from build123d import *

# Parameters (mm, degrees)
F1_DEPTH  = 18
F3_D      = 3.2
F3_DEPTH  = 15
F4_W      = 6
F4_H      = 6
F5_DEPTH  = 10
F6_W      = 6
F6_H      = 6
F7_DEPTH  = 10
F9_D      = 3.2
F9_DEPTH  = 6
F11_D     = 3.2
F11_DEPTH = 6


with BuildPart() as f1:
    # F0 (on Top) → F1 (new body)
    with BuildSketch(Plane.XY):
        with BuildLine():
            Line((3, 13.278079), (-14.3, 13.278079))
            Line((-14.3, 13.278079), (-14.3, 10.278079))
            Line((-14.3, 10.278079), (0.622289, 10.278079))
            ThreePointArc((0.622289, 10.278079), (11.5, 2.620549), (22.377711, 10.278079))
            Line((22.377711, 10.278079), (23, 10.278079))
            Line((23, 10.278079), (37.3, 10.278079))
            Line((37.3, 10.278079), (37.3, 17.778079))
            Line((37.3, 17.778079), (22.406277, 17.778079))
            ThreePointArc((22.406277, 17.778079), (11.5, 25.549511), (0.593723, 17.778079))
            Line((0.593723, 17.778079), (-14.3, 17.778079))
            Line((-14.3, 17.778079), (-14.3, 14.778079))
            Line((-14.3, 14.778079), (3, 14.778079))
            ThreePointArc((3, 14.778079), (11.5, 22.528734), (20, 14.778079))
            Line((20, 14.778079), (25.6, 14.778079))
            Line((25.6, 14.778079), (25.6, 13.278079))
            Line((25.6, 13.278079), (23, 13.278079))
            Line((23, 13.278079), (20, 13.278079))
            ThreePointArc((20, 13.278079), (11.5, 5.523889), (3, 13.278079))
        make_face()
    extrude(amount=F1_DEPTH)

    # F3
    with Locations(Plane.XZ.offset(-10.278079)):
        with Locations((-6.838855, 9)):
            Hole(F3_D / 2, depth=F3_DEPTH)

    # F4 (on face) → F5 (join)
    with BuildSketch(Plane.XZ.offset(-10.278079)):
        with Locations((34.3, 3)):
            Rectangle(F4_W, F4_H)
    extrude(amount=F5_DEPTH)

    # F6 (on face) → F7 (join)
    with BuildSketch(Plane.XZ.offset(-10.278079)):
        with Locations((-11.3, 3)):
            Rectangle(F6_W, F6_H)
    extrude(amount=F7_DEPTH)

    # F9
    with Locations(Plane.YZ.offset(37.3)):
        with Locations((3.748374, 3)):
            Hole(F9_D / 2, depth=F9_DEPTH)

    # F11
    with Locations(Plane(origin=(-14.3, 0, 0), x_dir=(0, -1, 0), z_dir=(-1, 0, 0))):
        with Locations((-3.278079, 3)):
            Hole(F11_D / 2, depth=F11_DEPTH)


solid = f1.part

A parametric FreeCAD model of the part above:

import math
import FreeCAD as App
import Part
import Sketcher
from FreeCAD import Vector


def add_polygon(sketch, points):
    """Adds a closed chain of lines whose ends are joined by coincident constraints."""
    first, n = sketch.GeometryCount, len(points)
    for a, b in zip(points, points[1:] + points[:1]):
        sketch.addGeometry(Part.LineSegment(App.Vector(*a, 0), App.Vector(*b, 0)), False)
    for i in range(n):
        sketch.addConstraint(Sketcher.Constraint("Coincident", first + i, 2, first + (i + 1) % n, 1))

doc = App.newDocument("Part")
body = doc.addObject("PartDesign::Body", "Body")

# Sketch on XY plane
sketch1 = body.newObject("Sketcher::SketchObject", "Sketch")
sketch1.AttachmentSupport = (doc.getObject("XY_Plane"), [""])
sketch1.MapMode = "FlatFace"
sketch1.addGeometry([
    Part.LineSegment(Vector(3, 13.3, 0), Vector(-14.3, 13.3, 0)),  # 0
    Part.LineSegment(Vector(-14.3, 13.3, 0), Vector(-14.3, 10.3, 0)),  # 1
    Part.LineSegment(Vector(-14.3, 10.3, 0), Vector(0.6, 10.3, 0)),  # 2
    Part.ArcOfCircle(Part.Circle(Vector(11.5, 14.2, 0), Vector(0, 0, 1), 11.6), math.radians(-160), math.radians(-20)),  # 3
    Part.LineSegment(Vector(22.4, 10.3, 0), Vector(37.3, 10.3, 0)),  # 4
    Part.LineSegment(Vector(37.3, 10.3, 0), Vector(37.3, 17.8, 0)),  # 5
    Part.LineSegment(Vector(37.3, 17.8, 0), Vector(22.4, 17.8, 0)),  # 6
    Part.ArcOfCircle(Part.Circle(Vector(11.5, 14, 0), Vector(0, 0, 1), 11.5), math.radians(19), math.radians(161)),  # 7
    Part.LineSegment(Vector(0.6, 17.8, 0), Vector(-14.3, 17.8, 0)),  # 8
    Part.LineSegment(Vector(-14.3, 17.8, 0), Vector(-14.3, 14.8, 0)),  # 9
    Part.LineSegment(Vector(-14.3, 14.8, 0), Vector(3, 14.8, 0)),  # 10
    Part.ArcOfCircle(Part.Circle(Vector(11.5, 14, 0), Vector(0, 0, 1), 8.5), math.radians(5), math.radians(175)),  # 11
    Part.LineSegment(Vector(20, 14.8, 0), Vector(25.6, 14.8, 0)),  # 12
    Part.LineSegment(Vector(25.6, 14.8, 0), Vector(25.6, 13.3, 0)),  # 13
    Part.LineSegment(Vector(25.6, 13.3, 0), Vector(20, 13.3, 0)),  # 14
    Part.ArcOfCircle(Part.Circle(Vector(11.5, 14.1, 0), Vector(0, 0, 1), 8.5), math.radians(-175), math.radians(-5)),  # 15
], False)
sketch1.addConstraint([
    Sketcher.Constraint("Coincident", 0, 2, 1, 1),
    Sketcher.Constraint("Coincident", 1, 2, 2, 1),
    Sketcher.Constraint("Coincident", 2, 2, 3, 1),
    Sketcher.Constraint("Coincident", 3, 2, 4, 1),
    Sketcher.Constraint("Coincident", 4, 2, 5, 1),
    Sketcher.Constraint("Coincident", 5, 2, 6, 1),
    Sketcher.Constraint("Coincident", 6, 2, 7, 1),
    Sketcher.Constraint("Coincident", 7, 2, 8, 1),
    Sketcher.Constraint("Coincident", 8, 2, 9, 1),
    Sketcher.Constraint("Coincident", 9, 2, 10, 1),
    Sketcher.Constraint("Coincident", 10, 2, 11, 2),
    Sketcher.Constraint("Coincident", 11, 1, 12, 1),
    Sketcher.Constraint("Coincident", 12, 2, 13, 1),
    Sketcher.Constraint("Coincident", 13, 2, 14, 1),
    Sketcher.Constraint("Coincident", 14, 2, 15, 2),
    Sketcher.Constraint("Coincident", 15, 1, 0, 1),
    Sketcher.Constraint("Horizontal", 0),
    Sketcher.Constraint("Vertical", 1),
    Sketcher.Constraint("Horizontal", 2),
    Sketcher.Constraint("Horizontal", 4),
    Sketcher.Constraint("Vertical", 5),
    Sketcher.Constraint("Horizontal", 6),
    Sketcher.Constraint("Horizontal", 8),
    Sketcher.Constraint("Vertical", 9),
    Sketcher.Constraint("Horizontal", 10),
    Sketcher.Constraint("Horizontal", 12),
    Sketcher.Constraint("Vertical", 13),
    Sketcher.Constraint("Horizontal", 14),
    Sketcher.Constraint("Horizontal", 2, 2, 3, 2),
    Sketcher.Constraint("Horizontal", 6, 2, 7, 2),
    Sketcher.Constraint("Horizontal", 10, 2, 11, 1),
    Sketcher.Constraint("Horizontal", 0, 2, 13, 2),
    Sketcher.Constraint("Vertical", 3, 3, 7, 3),
    Sketcher.Constraint("Vertical", 7, 3, 11, 3),
    Sketcher.Constraint("Vertical", 11, 3, 15, 3),
    Sketcher.Constraint("Vertical", 1, 2, 8, 2),
    Sketcher.Constraint("Vertical", 11, 1, 14, 2),
    Sketcher.Constraint("Equal", 2, 4),
    Sketcher.Constraint("Equal", 1, 9),
    Sketcher.Constraint("DistanceY", 1, 2, 1, 1, 3.0),
    Sketcher.Constraint("DistanceX", 0, 2, 0, 1, 17.3),
    Sketcher.Constraint("DistanceX", 12, 1, 12, 2, 5.6),
    Sketcher.Constraint("DistanceY", 5, 1, 5, 2, 7.5),
    Sketcher.Constraint("DistanceX", -1, 1, 10, 2, 3.0),
    Sketcher.Constraint("DistanceX", -1, 1, 11, 1, 20.0),
    Sketcher.Constraint("Radius", 3, 11.554794),
    Sketcher.Constraint("Radius", 7, 11.538545),
    Sketcher.Constraint("Radius", 11, 8.536224),
    Sketcher.Constraint("Radius", 15, 8.535867),
    Sketcher.Constraint("DistanceX", 2, 1, 2, 2, 14.922289),
    Sketcher.Constraint("DistanceX", 6, 2, 6, 1, 14.893723),
    Sketcher.Constraint("DistanceY", -1, 1, 11, 3, 13.99251),
])
pad1 = body.newObject("PartDesign::Pad", "Pad")
pad1.Profile = sketch1
pad1.Length = 18

# Sketch on XZ plane
sketch2 = body.newObject("Sketcher::SketchObject", "Sketch001")
sketch2.AttachmentSupport = (doc.getObject("XZ_Plane"), [""])
sketch2.MapMode = "FlatFace"
sketch2.AttachmentOffset = App.Placement(Vector(0, 0, -10.278079), App.Rotation())
sketch2.addGeometry(Part.Circle(Vector(-6.8, 9, 0), Vector(0, 0, 1), 1.6), False)
sketch2.addConstraint([
    Sketcher.Constraint("Diameter", 0, 3.2),
    Sketcher.Constraint("DistanceY", -1, 1, 0, 3, 9.0),
    Sketcher.Constraint("DistanceX", 0, 3, -1, 1, 6.838855),
])
doc.recompute()
hole = body.newObject("PartDesign::Hole", "Hole")
hole.Profile = sketch2
hole.ThreadType = "None"
hole.Diameter = 3.2
hole.DepthType = "Dimension"
hole.Depth = 15
hole.DrillPoint = "Flat"

# Sketch on XZ plane
sketch3 = body.newObject("Sketcher::SketchObject", "Sketch002")
sketch3.AttachmentSupport = (doc.getObject("XZ_Plane"), [""])
sketch3.MapMode = "FlatFace"
sketch3.AttachmentOffset = App.Placement(Vector(0, 0, -10.278079), App.Rotation())
add_polygon(sketch3, [(31, 6), (31, 0), (37, 0), (37, 6)])  # lines 0-3
sketch3.addConstraint([
    Sketcher.Constraint("Vertical", 0),
    Sketcher.Constraint("Horizontal", 1),
    Sketcher.Constraint("Vertical", 2),
    Sketcher.Constraint("Horizontal", 3),
    Sketcher.Constraint("PointOnObject", 0, 2, -1),
    Sketcher.Constraint("Equal", 3, 0),
    Sketcher.Constraint("DistanceX", 1, 1, 1, 2, 6.0),
    Sketcher.Constraint("DistanceX", -1, 1, 0, 2, 31.3),
])
pad2 = body.newObject("PartDesign::Pad", "Pad001")
pad2.Profile = sketch3
pad2.Length = 10

# Sketch on XZ plane
sketch4 = body.newObject("Sketcher::SketchObject", "Sketch003")
sketch4.AttachmentSupport = (doc.getObject("XZ_Plane"), [""])
sketch4.MapMode = "FlatFace"
sketch4.AttachmentOffset = App.Placement(Vector(0, 0, -10.278079), App.Rotation())
add_polygon(sketch4, [(-14, 6), (-14, 0), (-8, 0), (-8, 6)])  # lines 0-3
sketch4.addConstraint([
    Sketcher.Constraint("Vertical", 0),
    Sketcher.Constraint("Horizontal", 1),
    Sketcher.Constraint("Vertical", 2),
    Sketcher.Constraint("Horizontal", 3),
    Sketcher.Constraint("PointOnObject", 0, 2, -1),
    Sketcher.Constraint("Equal", 3, 0),
    Sketcher.Constraint("DistanceX", 1, 1, 1, 2, 6.0),
    Sketcher.Constraint("DistanceX", 0, 2, -1, 1, 14.3),
])
pad3 = body.newObject("PartDesign::Pad", "Pad002")
pad3.Profile = sketch4
pad3.Length = 10

# Sketch on YZ plane
sketch5 = body.newObject("Sketcher::SketchObject", "Sketch004")
sketch5.AttachmentSupport = (doc.getObject("YZ_Plane"), [""])
sketch5.MapMode = "FlatFace"
sketch5.AttachmentOffset = App.Placement(Vector(0, 0, 37.3), App.Rotation())
sketch5.addGeometry(Part.Circle(Vector(3.7, 3, 0), Vector(0, 0, 1), 1.6), False)
sketch5.addConstraint([
    Sketcher.Constraint("Diameter", 0, 3.2),
    Sketcher.Constraint("DistanceY", -1, 1, 0, 3, 3.0),
    Sketcher.Constraint("DistanceX", -1, 1, 0, 3, 3.748374),
])
doc.recompute()
hole2 = body.newObject("PartDesign::Hole", "Hole001")
hole2.Profile = sketch5
hole2.ThreadType = "None"
hole2.Diameter = 3.2
hole2.DepthType = "Dimension"
hole2.Depth = 6
hole2.DrillPoint = "Flat"

# Sketch on YZ plane
sketch6 = body.newObject("Sketcher::SketchObject", "Sketch005")
sketch6.AttachmentSupport = (doc.getObject("YZ_Plane"), [""])
sketch6.MapMode = "FlatFace"
sketch6.AttachmentOffset = App.Placement(Vector(0, 0, -14.3), App.Rotation())
sketch6.addGeometry(Part.Circle(Vector(3.3, 3, 0), Vector(0, 0, 1), 1.6), False)
sketch6.addConstraint([
    Sketcher.Constraint("Diameter", 0, 3.2),
    Sketcher.Constraint("DistanceY", -1, 1, 0, 3, 3.0),
    Sketcher.Constraint("DistanceX", -1, 1, 0, 3, 3.278079),
])
doc.recompute()
hole3 = body.newObject("PartDesign::Hole", "Hole002")
hole3.Profile = sketch6
hole3.ThreadType = "None"
hole3.Diameter = 3.2
hole3.DepthType = "Dimension"
hole3.Depth = 6
hole3.DrillPoint = "Flat"
hole3.Reversed = True

doc.recompute()
